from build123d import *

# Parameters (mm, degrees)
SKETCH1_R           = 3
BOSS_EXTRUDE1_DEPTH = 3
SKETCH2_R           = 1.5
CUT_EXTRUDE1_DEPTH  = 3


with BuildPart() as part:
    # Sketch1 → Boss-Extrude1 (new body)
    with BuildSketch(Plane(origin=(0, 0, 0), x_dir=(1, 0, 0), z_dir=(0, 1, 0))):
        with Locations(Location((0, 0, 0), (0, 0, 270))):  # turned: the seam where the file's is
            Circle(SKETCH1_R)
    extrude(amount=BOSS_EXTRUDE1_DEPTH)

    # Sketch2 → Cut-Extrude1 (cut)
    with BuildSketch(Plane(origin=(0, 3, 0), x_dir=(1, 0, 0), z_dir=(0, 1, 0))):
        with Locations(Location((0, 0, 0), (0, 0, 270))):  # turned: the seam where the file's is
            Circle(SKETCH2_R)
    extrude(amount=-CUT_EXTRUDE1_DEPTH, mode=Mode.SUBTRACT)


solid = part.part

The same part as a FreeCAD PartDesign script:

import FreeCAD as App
import Part
import Sketcher

doc = App.newDocument("Part")
body = doc.addObject("PartDesign::Body", "Body")

# Sketch on XZ plane
sketch1 = body.newObject("Sketcher::SketchObject", "Sketch")
sketch1.AttachmentSupport = (doc.getObject("XZ_Plane"), [""])
sketch1.MapMode = "FlatFace"
sketch1.addGeometry(Part.Circle(App.Vector(0, 0, 0), App.Vector(0, 0, 1), 3), False)
sketch1.addConstraint([
    Sketcher.Constraint("Coincident", 0, 3, -1, 1),
    Sketcher.Constraint("Diameter", 0, 6.0),
])
pad1 = body.newObject("PartDesign::Pad", "Pad")
pad1.Profile = sketch1
pad1.Length = 3
pad1.Reversed = True

# Sketch on XZ plane
sketch2 = body.newObject("Sketcher::SketchObject", "Sketch001")
sketch2.AttachmentSupport = (doc.getObject("XZ_Plane"), [""])
sketch2.MapMode = "FlatFace"
sketch2.AttachmentOffset = App.Placement(App.Vector(0, 0, -3), App.Rotation())
sketch2.addGeometry(Part.Circle(App.Vector(0, 0, 0), App.Vector(0, 0, 1), 1.5), False)
sketch2.addConstraint([
    Sketcher.Constraint("Coincident", 0, 3, -1, 1),
    Sketcher.Constraint("Diameter", 0, 3.0),
])
pocket1 = body.newObject("PartDesign::Pocket", "Pocket")
pocket1.Profile = sketch2
pocket1.Length = 3
pocket1.Reversed = True

doc.recompute()
